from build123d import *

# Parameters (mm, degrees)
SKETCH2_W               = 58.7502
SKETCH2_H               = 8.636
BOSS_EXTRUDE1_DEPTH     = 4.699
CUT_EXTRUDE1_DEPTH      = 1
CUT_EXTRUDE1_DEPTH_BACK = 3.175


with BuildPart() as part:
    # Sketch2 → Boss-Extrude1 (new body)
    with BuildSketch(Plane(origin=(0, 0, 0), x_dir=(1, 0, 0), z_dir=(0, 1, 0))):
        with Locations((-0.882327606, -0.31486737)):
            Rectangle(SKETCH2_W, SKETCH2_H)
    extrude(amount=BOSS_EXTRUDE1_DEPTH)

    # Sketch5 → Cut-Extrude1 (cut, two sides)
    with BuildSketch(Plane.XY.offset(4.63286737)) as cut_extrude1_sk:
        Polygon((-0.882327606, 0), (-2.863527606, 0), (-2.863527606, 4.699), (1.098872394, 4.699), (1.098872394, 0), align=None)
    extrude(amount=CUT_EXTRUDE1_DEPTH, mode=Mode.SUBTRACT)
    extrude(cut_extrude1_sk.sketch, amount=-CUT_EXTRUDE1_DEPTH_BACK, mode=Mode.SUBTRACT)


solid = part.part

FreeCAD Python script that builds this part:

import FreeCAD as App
import Part
import Sketcher
Q = App.Units.Quantity


def add_polygon(sketch, points):
    """Adds a closed chain of lines whose ends are joined by coincident constraints."""
    first, n = sketch.GeometryCount, len(points)
    for a, b in zip(points, points[1:] + points[:1]):
        sketch.addGeometry(Part.LineSegment(App.Vector(*a, 0), App.Vector(*b, 0)), False)
    for i in range(n):
        sketch.addConstraint(Sketcher.Constraint("Coincident", first + i, 2, first + (i + 1) % n, 1))

doc = App.newDocument("Part")
body = doc.addObject("PartDesign::Body", "Body")

# Sketch on XZ plane
sketch1 = body.newObject("Sketcher::SketchObject", "Sketch")
sketch1.AttachmentSupport = (doc.getObject("XZ_Plane"), [""])
sketch1.MapMode = "FlatFace"
add_polygon(sketch1, [(-30, -4), (-30, 5), (28, 5), (28, -4)])  # lines 0-3
sketch1.addConstraint([
    Sketcher.Constraint("Vertical", 0),
    Sketcher.Constraint("Horizontal", 1),
    Sketcher.Constraint("Vertical", 2),
    Sketcher.Constraint("Horizontal", 3),
    Sketcher.Constraint("DistanceY", 0, 1, 0, 2, Q("0.34 in")),
    Sketcher.Constraint("DistanceX", 1, 1, 1, 2, Q("2.313 in")),
    Sketcher.Constraint("DistanceX", 0, 2, -1, 1, 30.257428),
    Sketcher.Constraint("DistanceY", -1, 1, 0, 2, 4.632867),
])
pad1 = body.newObject("PartDesign::Pad", "Pad")
pad1.Profile = sketch1
pad1.Length = Q("0.185 in")
pad1.Reversed = True

# Sketch on XY plane
sketch2 = body.newObject("Sketcher::SketchObject", "Sketch001")
sketch2.AttachmentSupport = (doc.getObject("XY_Plane"), [""])
sketch2.MapMode = "FlatFace"
sketch2.AttachmentOffset = App.Placement(App.Vector(0, 0, 4.632867), App.Rotation())
add_polygon(sketch2, [(-2.9, 0), (1.1, 0), (1.1, 4.7), (-2.9, 4.7)])  # lines 0-3
sketch2.addConstraint([
    Sketcher.Constraint("Horizontal", 0),
    Sketcher.Constraint("Vertical", 1),
    Sketcher.Constraint("Horizontal", 2),
    Sketcher.Constraint("Vertical", 3),
    Sketcher.Constraint("PointOnObject", 0, 2, -1),
    Sketcher.Constraint("DistanceX", 0, 1, 0, 2, Q("0.156 in")),
    Sketcher.Constraint("DistanceY", 1, 1, 1, 2, Q("0.185 in")),
    Sketcher.Constraint("DistanceX", -1, 1, 0, 2, 1.098872),
])
pocket1 = body.newObject("PartDesign::Pocket", "Pocket")
pocket1.Profile = sketch2
pocket1.Type = "TwoLengths"
pocket1.Length = 1
pocket1.Length2 = Q("0.125 in")
pocket1.Reversed = True

doc.recompute()
